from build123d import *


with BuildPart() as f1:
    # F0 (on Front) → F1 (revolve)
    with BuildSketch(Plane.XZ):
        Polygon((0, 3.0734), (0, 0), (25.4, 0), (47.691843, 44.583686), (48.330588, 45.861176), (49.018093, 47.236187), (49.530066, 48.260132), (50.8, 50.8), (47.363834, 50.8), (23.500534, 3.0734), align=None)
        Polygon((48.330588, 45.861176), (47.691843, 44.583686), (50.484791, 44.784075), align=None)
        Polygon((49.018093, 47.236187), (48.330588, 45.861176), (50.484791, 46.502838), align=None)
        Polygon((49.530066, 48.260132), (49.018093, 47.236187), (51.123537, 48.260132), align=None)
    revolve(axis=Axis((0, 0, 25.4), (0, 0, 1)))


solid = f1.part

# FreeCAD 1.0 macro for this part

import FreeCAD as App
import Part
import Sketcher

V = App.Vector
Q = App.Units.Quantity


def add_polygon(sketch, points):
    """Adds a closed chain of lines whose ends are joined by coincident constraints."""
    first, n = sketch.GeometryCount, len(points)
    for a, b in zip(points, points[1:] + points[:1]):
        sketch.addGeometry(Part.LineSegment(App.Vector(*a, 0), App.Vector(*b, 0)), False)
    for i in range(n):
        sketch.addConstraint(Sketcher.Constraint("Coincident", first + i, 2, first + (i + 1) % n, 1))

doc = App.newDocument("Part")
body = doc.addObject("PartDesign::Body", "Body")

sketch1 = body.newObject("Sketcher::SketchObject", "Sketch")
sketch1.AttachmentSupport = (doc.getObject("XZ_Plane"), [""])
sketch1.MapMode = "FlatFace"
add_polygon(sketch1, [(0, 3.1), (0, 0), (25.4, 0), (47.7, 44.6), (50.5, 44.8), (48.3, 45.9), (50.5, 46.5), (49, 47.2), (51.1, 48.3), (49.5, 48.3), (50.8, 50.8), (47.4, 50.8), (23.5, 3.1)])
sketch1.addConstraint([
    Sketcher.Constraint("Vertical", 0),
    Sketcher.Constraint("Horizontal", 1),
    Sketcher.Constraint("Horizontal", 8),
    Sketcher.Constraint("Horizontal", 10),
    Sketcher.Constraint("Horizontal", 12),
    Sketcher.Constraint("Coincident", 0, 2, -1, 1),
    Sketcher.Constraint("Perpendicular", 2, 4),
    Sketcher.Constraint("Parallel", 4, 6),
    Sketcher.Constraint("Perpendicular", 6, 9),
    Sketcher.Constraint("Parallel", 9, 11),
    Sketcher.Constraint("Vertical", 3, 2, 5, 2),
    Sketcher.Constraint("DistanceX", 1, 1, 1, 2, Q("1 in")),
    Sketcher.Constraint("DistanceX", -1, 1, 9, 2, Q("2 in")),
    Sketcher.Constraint("DistanceY", -1, 1, 9, 2, Q("2 in")),
    Sketcher.Constraint("DistanceY", 0, 2, 0, 1, Q("0.121 in")),
    Sketcher.Constraint("DistanceX", 8, 2, 8, 1, Q("1.593471 mm")),
    Sketcher.Constraint("DistanceY", 3, 2, 4, 2, Q("1.077101 mm")),
    Sketcher.Constraint("DistanceX", 6, 2, 5, 2, Q("1.466698 mm")),
    Sketcher.Constraint("DistanceY", 2, 2, 6, 2, Q("2.652501 mm")),
    Sketcher.Constraint("Distance", 4, Q("2.408472 mm")),
    Sketcher.Constraint("Distance", 7, Q("2.34123 mm")),
    Sketcher.Constraint("Distance", 9, Q("2.839659 mm")),
    Sketcher.Constraint("DistanceX", 10, 2, 10, 1, Q("3.436166 mm")),
    Sketcher.Constraint("DistanceX", -1, 1, 3, 2, Q("50.484791 mm")),
    Sketcher.Constraint("DistanceY", 2, 2, 3, 2, Q("0.200389 mm")),
])
revolution = body.newObject("PartDesign::Revolution", "Revolution")
revolution.Profile = sketch1
revolution.ReferenceAxis = (sketch1, ["V_Axis"])
revolution.Angle = 360

doc.recompute()
